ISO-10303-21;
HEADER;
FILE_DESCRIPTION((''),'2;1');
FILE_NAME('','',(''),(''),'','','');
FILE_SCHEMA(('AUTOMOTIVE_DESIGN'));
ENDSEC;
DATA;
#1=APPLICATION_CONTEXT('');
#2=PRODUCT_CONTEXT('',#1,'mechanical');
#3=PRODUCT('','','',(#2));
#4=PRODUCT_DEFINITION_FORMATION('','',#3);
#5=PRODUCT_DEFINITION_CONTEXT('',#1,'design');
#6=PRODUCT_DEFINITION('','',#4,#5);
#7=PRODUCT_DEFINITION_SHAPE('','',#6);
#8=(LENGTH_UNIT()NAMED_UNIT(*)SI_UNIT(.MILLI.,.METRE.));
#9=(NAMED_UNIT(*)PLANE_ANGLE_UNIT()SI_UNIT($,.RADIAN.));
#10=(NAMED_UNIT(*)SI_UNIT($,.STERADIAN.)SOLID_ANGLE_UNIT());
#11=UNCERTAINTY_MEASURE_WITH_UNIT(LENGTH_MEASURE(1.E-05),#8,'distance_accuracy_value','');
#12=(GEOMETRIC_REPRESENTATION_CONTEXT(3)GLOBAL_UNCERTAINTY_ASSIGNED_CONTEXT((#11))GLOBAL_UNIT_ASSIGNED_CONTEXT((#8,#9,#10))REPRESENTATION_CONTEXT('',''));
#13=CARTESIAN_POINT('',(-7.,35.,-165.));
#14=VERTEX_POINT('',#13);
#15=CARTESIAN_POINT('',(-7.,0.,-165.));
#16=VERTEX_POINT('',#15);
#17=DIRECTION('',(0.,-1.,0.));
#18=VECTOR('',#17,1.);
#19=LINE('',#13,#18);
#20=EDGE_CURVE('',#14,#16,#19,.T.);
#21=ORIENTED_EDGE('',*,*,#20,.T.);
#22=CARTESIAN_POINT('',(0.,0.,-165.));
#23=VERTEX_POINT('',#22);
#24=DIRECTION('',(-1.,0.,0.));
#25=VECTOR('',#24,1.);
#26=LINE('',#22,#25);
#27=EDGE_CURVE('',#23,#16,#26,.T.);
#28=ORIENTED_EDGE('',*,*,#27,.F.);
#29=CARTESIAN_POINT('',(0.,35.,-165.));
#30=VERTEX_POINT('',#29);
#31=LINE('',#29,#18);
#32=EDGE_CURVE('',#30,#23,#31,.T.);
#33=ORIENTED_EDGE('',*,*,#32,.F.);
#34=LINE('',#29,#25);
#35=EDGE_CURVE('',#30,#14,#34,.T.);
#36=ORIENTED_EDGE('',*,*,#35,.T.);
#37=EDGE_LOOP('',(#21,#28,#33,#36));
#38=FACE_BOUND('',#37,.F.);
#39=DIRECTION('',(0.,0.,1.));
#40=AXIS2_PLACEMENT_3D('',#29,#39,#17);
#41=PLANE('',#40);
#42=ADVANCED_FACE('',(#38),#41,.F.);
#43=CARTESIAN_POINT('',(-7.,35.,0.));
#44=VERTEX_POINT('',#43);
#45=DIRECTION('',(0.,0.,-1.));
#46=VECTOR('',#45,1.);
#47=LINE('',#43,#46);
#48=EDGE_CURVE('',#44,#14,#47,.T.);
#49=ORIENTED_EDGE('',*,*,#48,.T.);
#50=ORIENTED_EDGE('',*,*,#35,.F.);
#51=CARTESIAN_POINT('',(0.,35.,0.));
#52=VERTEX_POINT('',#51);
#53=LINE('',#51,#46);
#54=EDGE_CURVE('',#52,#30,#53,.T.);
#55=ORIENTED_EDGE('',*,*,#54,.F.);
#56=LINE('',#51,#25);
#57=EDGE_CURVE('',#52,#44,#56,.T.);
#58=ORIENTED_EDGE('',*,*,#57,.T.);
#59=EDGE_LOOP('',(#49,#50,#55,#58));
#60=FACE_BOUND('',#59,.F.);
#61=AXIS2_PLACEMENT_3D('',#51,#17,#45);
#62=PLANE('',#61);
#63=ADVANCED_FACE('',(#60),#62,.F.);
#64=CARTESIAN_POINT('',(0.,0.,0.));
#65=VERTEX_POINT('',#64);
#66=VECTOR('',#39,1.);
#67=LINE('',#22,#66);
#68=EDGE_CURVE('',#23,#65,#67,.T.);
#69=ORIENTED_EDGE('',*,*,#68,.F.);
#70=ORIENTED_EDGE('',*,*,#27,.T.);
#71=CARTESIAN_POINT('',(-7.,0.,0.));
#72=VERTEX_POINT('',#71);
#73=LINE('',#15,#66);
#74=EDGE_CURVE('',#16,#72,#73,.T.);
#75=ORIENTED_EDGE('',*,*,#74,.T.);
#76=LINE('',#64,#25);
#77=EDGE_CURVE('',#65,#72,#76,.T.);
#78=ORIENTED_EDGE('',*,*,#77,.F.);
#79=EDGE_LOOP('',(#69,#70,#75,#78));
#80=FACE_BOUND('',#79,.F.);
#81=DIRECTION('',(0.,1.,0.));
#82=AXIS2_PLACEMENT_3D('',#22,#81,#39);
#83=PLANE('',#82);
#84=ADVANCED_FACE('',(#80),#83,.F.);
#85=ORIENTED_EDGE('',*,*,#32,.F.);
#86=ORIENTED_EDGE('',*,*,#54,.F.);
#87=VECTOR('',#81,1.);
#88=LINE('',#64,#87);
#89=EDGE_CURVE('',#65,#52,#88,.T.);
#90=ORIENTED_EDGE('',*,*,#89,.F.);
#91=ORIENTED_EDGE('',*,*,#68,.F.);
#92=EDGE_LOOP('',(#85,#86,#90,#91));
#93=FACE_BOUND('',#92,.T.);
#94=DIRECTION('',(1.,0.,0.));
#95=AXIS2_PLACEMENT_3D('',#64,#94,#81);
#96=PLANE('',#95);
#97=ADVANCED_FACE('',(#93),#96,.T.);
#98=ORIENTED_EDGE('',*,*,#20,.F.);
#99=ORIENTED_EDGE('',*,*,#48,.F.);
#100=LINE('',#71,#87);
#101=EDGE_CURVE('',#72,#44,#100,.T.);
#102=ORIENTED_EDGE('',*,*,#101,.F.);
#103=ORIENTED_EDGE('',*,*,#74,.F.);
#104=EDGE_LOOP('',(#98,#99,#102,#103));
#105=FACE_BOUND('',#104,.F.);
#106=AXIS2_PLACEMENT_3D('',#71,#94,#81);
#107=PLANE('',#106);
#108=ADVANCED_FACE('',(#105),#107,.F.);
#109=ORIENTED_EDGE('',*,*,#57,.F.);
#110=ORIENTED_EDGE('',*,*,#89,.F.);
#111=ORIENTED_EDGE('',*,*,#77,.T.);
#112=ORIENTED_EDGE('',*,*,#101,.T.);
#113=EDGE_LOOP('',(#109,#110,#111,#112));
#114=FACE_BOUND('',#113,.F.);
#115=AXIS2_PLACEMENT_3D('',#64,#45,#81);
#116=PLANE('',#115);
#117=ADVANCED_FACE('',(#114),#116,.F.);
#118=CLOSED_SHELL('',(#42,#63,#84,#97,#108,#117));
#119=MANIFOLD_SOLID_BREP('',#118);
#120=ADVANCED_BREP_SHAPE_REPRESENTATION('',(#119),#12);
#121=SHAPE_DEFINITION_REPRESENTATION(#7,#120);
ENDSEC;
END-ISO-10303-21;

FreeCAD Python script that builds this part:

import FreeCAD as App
import Part
import Sketcher
from FreeCAD import Vector

doc = App.newDocument("Part")
body = doc.addObject("PartDesign::Body", "Body")

# Sketch on YZ plane
sketch1 = body.newObject("Sketcher::SketchObject", "Sketch")
sketch1.AttachmentSupport = (doc.getObject("YZ_Plane"), [""])
sketch1.MapMode = "FlatFace"
sketch1.addGeometry(Part.LineSegment(Vector(35, 0, 0), Vector(0, 0, 0)), False)
sketch1.addGeometry(Part.LineSegment(Vector(0, 0, 0), Vector(0, -165, 0)), False)
sketch1.addGeometry(Part.LineSegment(Vector(0, -165, 0), Vector(35, -165, 0)), False)
sketch1.addGeometry(Part.LineSegment(Vector(35, -165, 0), Vector(35, 0, 0)), False)
sketch1.addConstraint(Sketcher.Constraint("Coincident", 0, 2, 1, 1))
sketch1.addConstraint(Sketcher.Constraint("Coincident", 1, 2, 2, 1))
sketch1.addConstraint(Sketcher.Constraint("Coincident", 2, 2, 3, 1))
sketch1.addConstraint(Sketcher.Constraint("Coincident", 3, 2, 0, 1))
sketch1.addConstraint(Sketcher.Constraint("Horizontal", 0))
sketch1.addConstraint(Sketcher.Constraint("Vertical", 1))
sketch1.addConstraint(Sketcher.Constraint("Horizontal", 2))
sketch1.addConstraint(Sketcher.Constraint("Vertical", 3))
sketch1.addConstraint(Sketcher.Constraint("Coincident", 0, 2, -1, 1))
sketch1.addConstraint(Sketcher.Constraint("DistanceX", 0, 2, 0, 1, 35.0))
sketch1.addConstraint(Sketcher.Constraint("DistanceY", 1, 2, 1, 1, 165.0))
pad1 = body.newObject("PartDesign::Pad", "Pad")
pad1.Profile = sketch1
pad1.Length = 7
pad1.Reversed = True

doc.recompute()
